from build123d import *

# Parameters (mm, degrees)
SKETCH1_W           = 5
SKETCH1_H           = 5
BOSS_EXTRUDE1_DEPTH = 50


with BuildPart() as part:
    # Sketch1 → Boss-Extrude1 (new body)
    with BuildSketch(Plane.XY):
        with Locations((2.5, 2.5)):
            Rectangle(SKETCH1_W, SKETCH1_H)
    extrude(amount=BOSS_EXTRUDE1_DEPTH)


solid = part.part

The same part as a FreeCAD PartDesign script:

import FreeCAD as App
import Part
import Sketcher

V = App.Vector
Q = App.Units.Quantity

doc = App.newDocument("Part")
params = doc.addObject("Spreadsheet::Sheet", "Params")
for row, (alias, value) in enumerate([
    ("sketch1_width", "5 mm"),
    ("pad1_length", "50 mm"),
], start=1):
    params.set(f"A{row}", alias)
    params.set(f"B{row}", "=" + value)
    params.setAlias(f"B{row}", alias)

body = doc.addObject("PartDesign::Body", "Body")

# Sketch on XY plane
sketch1 = doc.addObject("Sketcher::SketchObject", "Sketch")
body.addObject(sketch1)
sketch1.AttachmentSupport = (doc.XY_Plane, [""])
sketch1.MapMode = "FlatFace"
sketch1.addGeometry(Part.LineSegment(V(0, 5, 0), V(0, 0, 0)), False)
sketch1.addGeometry(Part.LineSegment(V(0, 0, 0), V(5, 0, 0)), False)
sketch1.addGeometry(Part.LineSegment(V(5, 0, 0), V(5, 5, 0)), False)
sketch1.addGeometry(Part.LineSegment(V(5, 5, 0), V(0, 5, 0)), False)
sketch1.addConstraint(Sketcher.Constraint("Coincident", 0, 2, 1, 1))
sketch1.addConstraint(Sketcher.Constraint("Coincident", 1, 2, 2, 1))
sketch1.addConstraint(Sketcher.Constraint("Coincident", 2, 2, 3, 1))
sketch1.addConstraint(Sketcher.Constraint("Coincident", 3, 2, 0, 1))
sketch1.addConstraint(Sketcher.Constraint("Vertical", 0))
sketch1.addConstraint(Sketcher.Constraint("Horizontal", 1))
sketch1.addConstraint(Sketcher.Constraint("Vertical", 2))
sketch1.addConstraint(Sketcher.Constraint("Horizontal", 3))
sketch1.addConstraint(Sketcher.Constraint("Coincident", 0, 2, -1, 1))
sketch1.addConstraint(Sketcher.Constraint("Equal", 3, 0))
sketch1.addConstraint(Sketcher.Constraint("DistanceX", 1, 1, 1, 2, Q("5 mm")))
sketch1.setExpression("Constraints[10]", "Params.sketch1_width")
pad1 = doc.addObject("PartDesign::Pad", "Pad")
body.addObject(pad1)
pad1.Profile = sketch1
pad1.setExpression("Length", "Params.pad1_length")

doc.recompute()
